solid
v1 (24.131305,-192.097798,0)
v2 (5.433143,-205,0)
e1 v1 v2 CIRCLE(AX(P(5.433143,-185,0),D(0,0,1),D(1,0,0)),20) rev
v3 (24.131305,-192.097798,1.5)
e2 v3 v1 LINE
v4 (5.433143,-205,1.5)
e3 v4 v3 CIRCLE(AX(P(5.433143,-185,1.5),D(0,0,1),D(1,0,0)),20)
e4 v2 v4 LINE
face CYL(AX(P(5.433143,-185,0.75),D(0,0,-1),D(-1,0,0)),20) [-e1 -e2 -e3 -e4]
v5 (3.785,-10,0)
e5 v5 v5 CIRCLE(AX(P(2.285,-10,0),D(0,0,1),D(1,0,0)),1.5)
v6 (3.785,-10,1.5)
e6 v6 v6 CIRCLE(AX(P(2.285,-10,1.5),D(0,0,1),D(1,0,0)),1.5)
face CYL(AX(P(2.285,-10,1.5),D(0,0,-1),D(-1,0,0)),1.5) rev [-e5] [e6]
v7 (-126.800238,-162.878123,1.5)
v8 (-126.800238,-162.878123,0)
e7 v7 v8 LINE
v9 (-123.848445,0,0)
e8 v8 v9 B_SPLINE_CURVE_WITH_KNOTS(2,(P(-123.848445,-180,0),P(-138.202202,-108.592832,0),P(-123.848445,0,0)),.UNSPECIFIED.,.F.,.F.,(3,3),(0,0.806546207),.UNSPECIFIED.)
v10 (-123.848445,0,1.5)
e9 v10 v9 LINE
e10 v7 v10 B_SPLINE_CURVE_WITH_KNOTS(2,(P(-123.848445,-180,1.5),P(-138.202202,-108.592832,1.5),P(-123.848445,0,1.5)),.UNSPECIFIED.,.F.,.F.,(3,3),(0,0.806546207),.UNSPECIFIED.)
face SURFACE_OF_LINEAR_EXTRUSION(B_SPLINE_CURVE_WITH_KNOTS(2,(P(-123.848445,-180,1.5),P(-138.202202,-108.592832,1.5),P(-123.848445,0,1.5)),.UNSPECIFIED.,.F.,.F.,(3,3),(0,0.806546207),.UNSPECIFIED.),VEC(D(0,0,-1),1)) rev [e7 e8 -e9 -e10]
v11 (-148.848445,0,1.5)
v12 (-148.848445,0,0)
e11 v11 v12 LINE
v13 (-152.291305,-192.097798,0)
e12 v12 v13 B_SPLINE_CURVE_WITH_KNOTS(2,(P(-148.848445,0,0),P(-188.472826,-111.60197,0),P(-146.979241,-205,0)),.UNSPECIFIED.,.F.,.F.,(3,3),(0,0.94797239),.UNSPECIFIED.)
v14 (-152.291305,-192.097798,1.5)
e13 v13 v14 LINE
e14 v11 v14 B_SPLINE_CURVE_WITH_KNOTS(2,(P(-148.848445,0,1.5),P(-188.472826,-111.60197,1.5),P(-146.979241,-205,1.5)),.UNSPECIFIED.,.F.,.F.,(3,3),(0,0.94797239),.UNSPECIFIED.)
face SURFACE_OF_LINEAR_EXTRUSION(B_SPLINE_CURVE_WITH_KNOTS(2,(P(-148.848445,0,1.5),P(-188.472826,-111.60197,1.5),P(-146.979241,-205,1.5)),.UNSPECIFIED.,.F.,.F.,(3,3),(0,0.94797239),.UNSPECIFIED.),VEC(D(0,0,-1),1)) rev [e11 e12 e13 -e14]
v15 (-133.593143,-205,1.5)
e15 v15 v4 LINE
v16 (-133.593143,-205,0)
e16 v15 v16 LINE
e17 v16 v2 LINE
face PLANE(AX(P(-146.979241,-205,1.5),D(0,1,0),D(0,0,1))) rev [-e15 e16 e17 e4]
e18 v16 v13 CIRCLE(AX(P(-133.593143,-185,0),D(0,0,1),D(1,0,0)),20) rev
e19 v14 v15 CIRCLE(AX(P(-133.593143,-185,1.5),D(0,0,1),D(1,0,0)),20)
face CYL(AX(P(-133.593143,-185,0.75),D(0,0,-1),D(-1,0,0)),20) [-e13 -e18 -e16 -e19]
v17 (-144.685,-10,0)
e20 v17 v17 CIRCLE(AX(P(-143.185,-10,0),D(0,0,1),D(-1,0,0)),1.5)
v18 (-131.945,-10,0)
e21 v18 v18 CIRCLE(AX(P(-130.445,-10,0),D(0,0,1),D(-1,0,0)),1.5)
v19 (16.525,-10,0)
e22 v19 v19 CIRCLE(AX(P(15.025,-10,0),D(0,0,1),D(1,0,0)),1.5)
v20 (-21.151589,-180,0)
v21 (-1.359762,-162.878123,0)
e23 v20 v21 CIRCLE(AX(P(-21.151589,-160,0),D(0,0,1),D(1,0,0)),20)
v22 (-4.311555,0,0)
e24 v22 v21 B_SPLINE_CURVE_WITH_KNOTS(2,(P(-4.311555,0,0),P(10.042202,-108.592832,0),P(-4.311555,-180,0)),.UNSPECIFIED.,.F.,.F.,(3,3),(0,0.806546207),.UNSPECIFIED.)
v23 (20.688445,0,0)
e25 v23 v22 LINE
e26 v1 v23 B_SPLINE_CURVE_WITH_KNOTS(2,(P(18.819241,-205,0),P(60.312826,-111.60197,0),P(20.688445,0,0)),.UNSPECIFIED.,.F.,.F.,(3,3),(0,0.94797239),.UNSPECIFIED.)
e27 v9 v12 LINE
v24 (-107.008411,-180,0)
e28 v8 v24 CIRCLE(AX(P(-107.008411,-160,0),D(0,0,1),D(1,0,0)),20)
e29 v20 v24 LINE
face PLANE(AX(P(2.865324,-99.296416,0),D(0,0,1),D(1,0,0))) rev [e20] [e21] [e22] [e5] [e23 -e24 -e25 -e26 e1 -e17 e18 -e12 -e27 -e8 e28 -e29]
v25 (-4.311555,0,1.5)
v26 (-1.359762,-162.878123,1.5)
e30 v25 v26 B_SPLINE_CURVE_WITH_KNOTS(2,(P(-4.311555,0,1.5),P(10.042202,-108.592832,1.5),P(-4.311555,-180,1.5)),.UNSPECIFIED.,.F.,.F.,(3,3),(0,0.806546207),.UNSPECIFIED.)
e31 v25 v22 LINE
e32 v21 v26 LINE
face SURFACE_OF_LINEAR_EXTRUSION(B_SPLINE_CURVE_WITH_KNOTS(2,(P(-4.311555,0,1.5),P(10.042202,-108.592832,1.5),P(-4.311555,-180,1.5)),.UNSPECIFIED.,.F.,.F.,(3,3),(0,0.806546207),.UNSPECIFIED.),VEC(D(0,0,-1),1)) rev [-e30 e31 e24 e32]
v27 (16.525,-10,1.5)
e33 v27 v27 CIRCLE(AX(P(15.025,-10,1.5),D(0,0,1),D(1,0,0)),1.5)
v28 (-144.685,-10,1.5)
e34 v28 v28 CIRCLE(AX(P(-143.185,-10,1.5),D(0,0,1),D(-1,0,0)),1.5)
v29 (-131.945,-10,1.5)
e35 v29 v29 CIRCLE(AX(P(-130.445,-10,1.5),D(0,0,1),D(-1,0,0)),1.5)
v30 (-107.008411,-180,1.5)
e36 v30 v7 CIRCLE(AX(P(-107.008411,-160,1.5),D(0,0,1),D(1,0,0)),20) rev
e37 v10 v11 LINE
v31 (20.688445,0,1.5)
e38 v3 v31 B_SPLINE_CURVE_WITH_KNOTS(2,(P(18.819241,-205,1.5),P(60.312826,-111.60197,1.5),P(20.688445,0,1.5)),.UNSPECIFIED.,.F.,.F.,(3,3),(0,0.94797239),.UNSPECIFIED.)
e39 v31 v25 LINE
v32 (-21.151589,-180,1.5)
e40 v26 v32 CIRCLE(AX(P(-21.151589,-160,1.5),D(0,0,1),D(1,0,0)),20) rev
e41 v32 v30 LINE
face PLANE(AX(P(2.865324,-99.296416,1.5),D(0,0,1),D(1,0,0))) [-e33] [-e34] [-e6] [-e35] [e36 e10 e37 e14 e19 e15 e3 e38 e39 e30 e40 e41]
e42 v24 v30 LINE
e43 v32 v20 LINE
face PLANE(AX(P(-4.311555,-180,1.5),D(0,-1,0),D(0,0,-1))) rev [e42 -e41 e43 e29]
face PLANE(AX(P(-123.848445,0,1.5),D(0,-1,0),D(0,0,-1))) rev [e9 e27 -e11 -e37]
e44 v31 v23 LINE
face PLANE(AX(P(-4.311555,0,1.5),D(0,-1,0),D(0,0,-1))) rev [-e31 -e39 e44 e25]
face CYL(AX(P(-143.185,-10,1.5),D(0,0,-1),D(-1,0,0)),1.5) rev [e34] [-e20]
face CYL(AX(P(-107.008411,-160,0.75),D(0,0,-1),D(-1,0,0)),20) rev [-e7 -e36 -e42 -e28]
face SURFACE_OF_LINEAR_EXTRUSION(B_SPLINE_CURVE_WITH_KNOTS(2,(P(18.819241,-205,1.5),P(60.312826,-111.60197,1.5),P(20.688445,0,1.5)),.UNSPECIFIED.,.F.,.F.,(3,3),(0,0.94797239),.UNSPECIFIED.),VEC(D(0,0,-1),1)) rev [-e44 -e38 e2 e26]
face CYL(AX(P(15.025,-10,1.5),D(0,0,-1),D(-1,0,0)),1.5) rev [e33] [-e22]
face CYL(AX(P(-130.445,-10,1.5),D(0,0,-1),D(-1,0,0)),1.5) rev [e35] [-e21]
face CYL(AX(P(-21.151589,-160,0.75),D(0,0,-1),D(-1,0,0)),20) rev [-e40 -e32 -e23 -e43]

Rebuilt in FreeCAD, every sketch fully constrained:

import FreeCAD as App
import Part
import Sketcher


def edges_at(feature, points):
    """Names of the edges that pass closest to the given points."""
    edges = feature.Shape.Edges
    near = lambda p: min(range(len(edges)), key=lambda i: edges[i].distToShape(Part.Vertex(*p))[0])
    return sorted({f"Edge{near(p) + 1}" for p in points})

doc = App.newDocument("Part")
body = doc.addObject("PartDesign::Body", "Body")

# Sketch on XY plane
sketch1 = doc.addObject("Sketcher::SketchObject", "Sketch")
body.addObject(sketch1)
sketch1.AttachmentSupport = (doc.XY_Plane, [""])
sketch1.MapMode = "FlatFace"
sketch1.addGeometry([
    Part.LineSegment(App.Vector(20.688445, 0, 0), App.Vector(-4.311555, 0, 0)),  # 0
    Part.BSplineCurve([App.Vector(-4.311555, 0, 0), App.Vector(10.042202, -108.592832, 0), App.Vector(-4.311555, -180, 0)], [3, 3], [0, 0.806546207], False, 2, [1, 1, 1], False),  # 1
    Part.LineSegment(App.Vector(-4.311555, -180, 0), App.Vector(-123.848445, -180, 0)),  # 2
    Part.BSplineCurve([App.Vector(-123.848445, 0, 0), App.Vector(-138.202202, -108.592832, 0), App.Vector(-123.848445, -180, 0)], [3, 3], [0, 0.806546207], False, 2, [1, 1, 1], False),  # 3
    Part.LineSegment(App.Vector(-123.848445, 0, 0), App.Vector(-148.848445, 0, 0)),  # 4
    Part.BSplineCurve([App.Vector(-148.848445, 0, 0), App.Vector(-188.472826, -111.60197, 0), App.Vector(-146.979241, -205, 0)], [3, 3], [0, 0.94797239], False, 2, [1, 1, 1], False),  # 5
    Part.LineSegment(App.Vector(-146.979241, -205, 0), App.Vector(18.819241, -205, 0)),  # 6
    Part.BSplineCurve([App.Vector(20.688445, 0, 0), App.Vector(60.312826, -111.60197, 0), App.Vector(18.819241, -205, 0)], [3, 3], [0, 0.94797239], False, 2, [1, 1, 1], False),  # 7
    Part.Circle(App.Vector(15.025, -10, 0), App.Vector(0, 0, 1), 1.5),  # 8
    Part.Circle(App.Vector(2.285, -10, 0), App.Vector(0, 0, 1), 1.5),  # 9
    Part.Circle(App.Vector(-130.445, -10, 0), App.Vector(0, 0, 1), 1.5),  # 10
    Part.Circle(App.Vector(-143.185, -10, 0), App.Vector(0, 0, 1), 1.5),  # 11
], False)
sketch1.addConstraint([
    Sketcher.Constraint("Block", 1),
    Sketcher.Constraint("Block", 3),
    Sketcher.Constraint("Block", 5),
    Sketcher.Constraint("Block", 7),
    Sketcher.Constraint("Coincident", 0, 2, 1, 1),
    Sketcher.Constraint("Coincident", 1, 2, 2, 1),
    Sketcher.Constraint("Coincident", 2, 2, 3, 2),
    Sketcher.Constraint("Coincident", 3, 1, 4, 1),
    Sketcher.Constraint("Coincident", 4, 2, 5, 1),
    Sketcher.Constraint("Coincident", 5, 2, 6, 1),
    Sketcher.Constraint("Coincident", 6, 2, 7, 2),
    Sketcher.Constraint("Coincident", 7, 1, 0, 1),
    Sketcher.Constraint("Equal", 8, 9),
    Sketcher.Constraint("Equal", 9, 10),
    Sketcher.Constraint("Equal", 10, 11),
    Sketcher.Constraint("Horizontal", 8, 3, 9, 3),
    Sketcher.Constraint("Horizontal", 9, 3, 10, 3),
    Sketcher.Constraint("Horizontal", 10, 3, 11, 3),
    Sketcher.Constraint("Diameter", 8, 3.0),
    Sketcher.Constraint("DistanceY", 8, 3, -1, 1, 10.0),
    Sketcher.Constraint("DistanceX", 9, 3, 8, 3, 12.74),
    Sketcher.Constraint("DistanceX", 10, 3, 9, 3, 132.73),
    Sketcher.Constraint("DistanceX", 11, 3, 10, 3, 12.74),
    Sketcher.Constraint("DistanceX", -1, 1, 8, 3, 15.025),
])
pad1 = doc.addObject("PartDesign::Pad", "Pad")
body.addObject(pad1)
pad1.Profile = sketch1
pad1.Length = 1.5
doc.recompute()

fillet = doc.addObject("PartDesign::Fillet", "Fillet")
body.addObject(fillet)
fillet.Base = (pad1, edges_at(pad1, [(-123.848, -180, 0.75), (-4.312, -180, 0.75)]))
fillet.Radius = 20
doc.recompute()

fillet2 = doc.addObject("PartDesign::Fillet", "Fillet001")
body.addObject(fillet2)
fillet2.Base = (fillet, edges_at(fillet, [(-146.979, -205, 0.75), (18.819, -205, 0.75)]))
fillet2.Radius = 20

doc.recompute()
